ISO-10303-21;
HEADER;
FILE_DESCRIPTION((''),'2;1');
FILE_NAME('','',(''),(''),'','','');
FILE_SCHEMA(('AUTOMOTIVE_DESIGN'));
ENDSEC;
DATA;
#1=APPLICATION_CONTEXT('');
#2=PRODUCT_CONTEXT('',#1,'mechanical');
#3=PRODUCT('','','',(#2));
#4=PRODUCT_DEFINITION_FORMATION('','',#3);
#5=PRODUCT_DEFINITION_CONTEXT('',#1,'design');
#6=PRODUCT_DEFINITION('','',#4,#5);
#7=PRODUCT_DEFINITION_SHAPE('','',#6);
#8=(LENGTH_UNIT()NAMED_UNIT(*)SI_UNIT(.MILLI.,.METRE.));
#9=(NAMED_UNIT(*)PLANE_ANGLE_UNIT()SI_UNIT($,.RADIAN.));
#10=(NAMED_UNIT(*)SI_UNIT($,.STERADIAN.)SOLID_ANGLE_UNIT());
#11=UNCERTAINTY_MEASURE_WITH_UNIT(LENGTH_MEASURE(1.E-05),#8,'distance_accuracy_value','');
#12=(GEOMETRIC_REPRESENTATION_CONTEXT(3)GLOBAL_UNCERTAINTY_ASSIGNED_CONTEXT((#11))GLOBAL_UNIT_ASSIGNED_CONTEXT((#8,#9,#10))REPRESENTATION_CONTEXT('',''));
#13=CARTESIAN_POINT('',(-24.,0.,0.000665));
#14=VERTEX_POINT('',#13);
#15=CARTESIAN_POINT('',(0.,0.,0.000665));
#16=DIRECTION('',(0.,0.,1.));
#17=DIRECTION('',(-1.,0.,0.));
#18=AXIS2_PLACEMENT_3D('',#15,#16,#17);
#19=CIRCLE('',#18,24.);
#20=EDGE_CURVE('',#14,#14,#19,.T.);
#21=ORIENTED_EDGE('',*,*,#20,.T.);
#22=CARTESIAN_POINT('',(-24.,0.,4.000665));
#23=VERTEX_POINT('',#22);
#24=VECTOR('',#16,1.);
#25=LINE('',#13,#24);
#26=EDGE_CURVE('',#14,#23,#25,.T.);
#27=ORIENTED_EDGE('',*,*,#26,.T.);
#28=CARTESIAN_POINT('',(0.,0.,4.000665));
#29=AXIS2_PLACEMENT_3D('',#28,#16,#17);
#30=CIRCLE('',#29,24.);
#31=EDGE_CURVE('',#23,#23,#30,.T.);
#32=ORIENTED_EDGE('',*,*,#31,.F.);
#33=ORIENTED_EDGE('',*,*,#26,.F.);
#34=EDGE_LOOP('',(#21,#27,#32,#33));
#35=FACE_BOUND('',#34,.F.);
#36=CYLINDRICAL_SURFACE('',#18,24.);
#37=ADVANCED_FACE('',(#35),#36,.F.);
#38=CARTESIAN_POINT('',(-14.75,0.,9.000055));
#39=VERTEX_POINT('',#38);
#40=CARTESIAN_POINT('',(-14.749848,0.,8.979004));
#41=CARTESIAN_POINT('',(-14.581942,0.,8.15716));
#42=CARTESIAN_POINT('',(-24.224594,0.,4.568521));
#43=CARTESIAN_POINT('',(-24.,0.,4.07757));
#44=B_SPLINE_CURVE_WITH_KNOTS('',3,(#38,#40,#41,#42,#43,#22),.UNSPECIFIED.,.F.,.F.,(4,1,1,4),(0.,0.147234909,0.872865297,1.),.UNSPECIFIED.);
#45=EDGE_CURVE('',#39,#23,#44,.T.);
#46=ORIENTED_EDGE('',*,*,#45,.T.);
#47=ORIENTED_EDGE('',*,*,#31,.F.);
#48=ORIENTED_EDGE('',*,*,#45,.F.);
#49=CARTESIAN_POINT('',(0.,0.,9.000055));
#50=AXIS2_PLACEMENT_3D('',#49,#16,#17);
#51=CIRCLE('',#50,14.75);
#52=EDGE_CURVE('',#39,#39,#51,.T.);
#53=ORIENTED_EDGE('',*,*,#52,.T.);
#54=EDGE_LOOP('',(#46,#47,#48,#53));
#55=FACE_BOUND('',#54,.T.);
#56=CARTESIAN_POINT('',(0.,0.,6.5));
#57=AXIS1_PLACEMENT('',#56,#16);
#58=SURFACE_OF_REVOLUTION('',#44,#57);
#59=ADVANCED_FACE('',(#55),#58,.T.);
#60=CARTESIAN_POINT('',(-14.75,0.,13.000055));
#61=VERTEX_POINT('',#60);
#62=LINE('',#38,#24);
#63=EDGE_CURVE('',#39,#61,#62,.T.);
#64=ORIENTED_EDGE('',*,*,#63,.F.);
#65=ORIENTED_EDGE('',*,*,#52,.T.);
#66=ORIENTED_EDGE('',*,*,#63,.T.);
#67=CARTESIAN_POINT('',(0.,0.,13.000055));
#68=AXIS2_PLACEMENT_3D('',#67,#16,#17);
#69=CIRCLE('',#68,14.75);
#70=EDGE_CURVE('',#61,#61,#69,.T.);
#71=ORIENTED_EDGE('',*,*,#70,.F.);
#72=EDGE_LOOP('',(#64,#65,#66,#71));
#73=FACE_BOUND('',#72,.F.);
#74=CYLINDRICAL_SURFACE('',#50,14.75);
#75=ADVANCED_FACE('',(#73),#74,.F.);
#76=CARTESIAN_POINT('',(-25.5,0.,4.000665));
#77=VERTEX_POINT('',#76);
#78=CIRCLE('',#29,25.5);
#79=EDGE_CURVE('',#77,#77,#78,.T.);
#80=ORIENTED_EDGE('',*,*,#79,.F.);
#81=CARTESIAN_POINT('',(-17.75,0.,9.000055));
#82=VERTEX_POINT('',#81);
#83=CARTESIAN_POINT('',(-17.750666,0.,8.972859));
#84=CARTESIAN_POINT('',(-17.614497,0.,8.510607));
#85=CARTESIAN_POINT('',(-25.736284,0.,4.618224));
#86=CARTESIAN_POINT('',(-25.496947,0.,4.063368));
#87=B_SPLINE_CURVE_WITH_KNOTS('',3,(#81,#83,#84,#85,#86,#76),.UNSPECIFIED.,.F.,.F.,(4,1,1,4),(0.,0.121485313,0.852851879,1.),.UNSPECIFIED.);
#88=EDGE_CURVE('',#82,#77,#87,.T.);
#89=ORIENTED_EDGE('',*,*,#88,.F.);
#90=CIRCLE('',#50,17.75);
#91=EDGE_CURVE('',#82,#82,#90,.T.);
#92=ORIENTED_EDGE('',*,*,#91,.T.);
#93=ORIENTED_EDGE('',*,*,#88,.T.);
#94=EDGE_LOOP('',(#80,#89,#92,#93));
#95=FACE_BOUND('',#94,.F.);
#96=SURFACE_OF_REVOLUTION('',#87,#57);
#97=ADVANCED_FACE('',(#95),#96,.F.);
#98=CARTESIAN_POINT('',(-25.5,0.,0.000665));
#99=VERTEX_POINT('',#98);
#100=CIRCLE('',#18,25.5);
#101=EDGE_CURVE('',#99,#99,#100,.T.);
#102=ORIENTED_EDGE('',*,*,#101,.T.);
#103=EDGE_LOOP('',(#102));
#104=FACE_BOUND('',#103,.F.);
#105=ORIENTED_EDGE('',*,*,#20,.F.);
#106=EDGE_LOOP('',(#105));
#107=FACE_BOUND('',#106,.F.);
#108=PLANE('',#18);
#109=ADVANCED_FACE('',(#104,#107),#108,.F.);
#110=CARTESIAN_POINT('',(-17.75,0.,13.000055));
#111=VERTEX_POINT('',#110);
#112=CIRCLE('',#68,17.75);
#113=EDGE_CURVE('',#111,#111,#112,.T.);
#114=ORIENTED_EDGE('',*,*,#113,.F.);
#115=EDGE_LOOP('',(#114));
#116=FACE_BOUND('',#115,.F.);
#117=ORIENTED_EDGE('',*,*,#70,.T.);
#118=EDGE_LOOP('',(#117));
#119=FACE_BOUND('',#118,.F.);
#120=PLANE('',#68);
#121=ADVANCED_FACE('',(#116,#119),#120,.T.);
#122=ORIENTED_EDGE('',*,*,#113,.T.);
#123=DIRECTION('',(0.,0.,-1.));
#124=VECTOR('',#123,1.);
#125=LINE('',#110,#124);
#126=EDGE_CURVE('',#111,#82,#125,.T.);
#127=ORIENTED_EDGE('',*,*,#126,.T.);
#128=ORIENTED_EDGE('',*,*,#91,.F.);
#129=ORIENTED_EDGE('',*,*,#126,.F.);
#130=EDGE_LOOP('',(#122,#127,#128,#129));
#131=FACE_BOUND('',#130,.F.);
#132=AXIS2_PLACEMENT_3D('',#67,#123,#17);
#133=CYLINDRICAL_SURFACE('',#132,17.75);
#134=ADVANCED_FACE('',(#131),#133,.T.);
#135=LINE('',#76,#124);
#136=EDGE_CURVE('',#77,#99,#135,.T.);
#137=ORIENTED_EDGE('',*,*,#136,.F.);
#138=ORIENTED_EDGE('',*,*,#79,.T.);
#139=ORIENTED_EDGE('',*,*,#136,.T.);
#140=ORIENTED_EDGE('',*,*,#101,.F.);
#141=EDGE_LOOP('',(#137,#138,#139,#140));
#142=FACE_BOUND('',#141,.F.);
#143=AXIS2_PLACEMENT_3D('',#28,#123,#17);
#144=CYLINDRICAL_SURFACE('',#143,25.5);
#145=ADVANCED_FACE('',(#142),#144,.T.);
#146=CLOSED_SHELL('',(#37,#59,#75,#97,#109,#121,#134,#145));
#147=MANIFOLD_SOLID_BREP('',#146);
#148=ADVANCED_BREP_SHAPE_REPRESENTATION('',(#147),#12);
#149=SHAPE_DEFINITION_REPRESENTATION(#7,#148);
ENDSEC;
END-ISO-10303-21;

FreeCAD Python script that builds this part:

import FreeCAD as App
import Part
import Sketcher

V = App.Vector
Q = App.Units.Quantity

doc = App.newDocument("Part")
body = doc.addObject("PartDesign::Body", "Body")

sketch1 = doc.addObject("Sketcher::SketchObject", "Sketch")
body.addObject(sketch1)
sketch1.AttachmentSupport = (doc.XZ_Plane, [""])
sketch1.MapMode = "FlatFace"
sketch1.addGeometry([
    Part.LineSegment(V(-25.5, 4.000665, 0), V(-25.5, 0.000665, 0)),
    Part.LineSegment(V(-25.5, 0.000665, 0), V(-24, 0.000665, 0)),
    Part.LineSegment(V(-24, 0.000665, 0), V(-24, 4.000665, 0)),
    Part.BSplineCurve([V(-14.75, 9.000055, 0), V(-14.749848, 8.979004, 0), V(-14.581942, 8.15716, 0), V(-24.224594, 4.568521, 0), V(-24, 4.07757, 0), V(-24, 4.000665, 0)], [4, 1, 1, 4], [0, 0.147234909, 0.872865297, 1], False, 3, [1, 1, 1, 1, 1, 1], False),
    Part.LineSegment(V(-14.75, 9.000055, 0), V(-14.75, 13.000055, 0)),
    Part.LineSegment(V(-14.75, 13.000055, 0), V(-17.75, 13.000055, 0)),
    Part.LineSegment(V(-17.75, 13.000055, 0), V(-17.75, 9.000055, 0)),
    Part.BSplineCurve([V(-17.75, 9.000055, 0), V(-17.750666, 8.972859, 0), V(-17.614497, 8.510607, 0), V(-25.736284, 4.618224, 0), V(-25.496947, 4.063368, 0), V(-25.5, 4.000665, 0)], [4, 1, 1, 4], [0, 0.121485313, 0.852851879, 1], False, 3, [1, 1, 1, 1, 1, 1], False),
], False)
sketch1.addConstraint([
    Sketcher.Constraint("Block", 3),
    Sketcher.Constraint("Block", 7),
    Sketcher.Constraint("Coincident", 0, 2, 1, 1),
    Sketcher.Constraint("Coincident", 1, 2, 2, 1),
    Sketcher.Constraint("Coincident", 2, 2, 3, 2),
    Sketcher.Constraint("Coincident", 3, 1, 4, 1),
    Sketcher.Constraint("Coincident", 4, 2, 5, 1),
    Sketcher.Constraint("Coincident", 5, 2, 6, 1),
    Sketcher.Constraint("Coincident", 6, 2, 7, 1),
    Sketcher.Constraint("Coincident", 7, 2, 0, 1),
    Sketcher.Constraint("Vertical", 0),
    Sketcher.Constraint("Horizontal", 1),
    Sketcher.Constraint("Vertical", 2),
    Sketcher.Constraint("Vertical", 4),
    Sketcher.Constraint("Horizontal", 5),
    Sketcher.Constraint("Vertical", 6),
    Sketcher.Constraint("DistanceY", 0, 2, 0, 1, Q("4 mm")),
    Sketcher.Constraint("DistanceY", 4, 1, 4, 2, Q("4 mm")),
])
revolution = doc.addObject("PartDesign::Revolution", "Revolution")
body.addObject(revolution)
revolution.Profile = sketch1
revolution.ReferenceAxis = (sketch1, ["V_Axis"])
revolution.Angle = 360

doc.recompute()
